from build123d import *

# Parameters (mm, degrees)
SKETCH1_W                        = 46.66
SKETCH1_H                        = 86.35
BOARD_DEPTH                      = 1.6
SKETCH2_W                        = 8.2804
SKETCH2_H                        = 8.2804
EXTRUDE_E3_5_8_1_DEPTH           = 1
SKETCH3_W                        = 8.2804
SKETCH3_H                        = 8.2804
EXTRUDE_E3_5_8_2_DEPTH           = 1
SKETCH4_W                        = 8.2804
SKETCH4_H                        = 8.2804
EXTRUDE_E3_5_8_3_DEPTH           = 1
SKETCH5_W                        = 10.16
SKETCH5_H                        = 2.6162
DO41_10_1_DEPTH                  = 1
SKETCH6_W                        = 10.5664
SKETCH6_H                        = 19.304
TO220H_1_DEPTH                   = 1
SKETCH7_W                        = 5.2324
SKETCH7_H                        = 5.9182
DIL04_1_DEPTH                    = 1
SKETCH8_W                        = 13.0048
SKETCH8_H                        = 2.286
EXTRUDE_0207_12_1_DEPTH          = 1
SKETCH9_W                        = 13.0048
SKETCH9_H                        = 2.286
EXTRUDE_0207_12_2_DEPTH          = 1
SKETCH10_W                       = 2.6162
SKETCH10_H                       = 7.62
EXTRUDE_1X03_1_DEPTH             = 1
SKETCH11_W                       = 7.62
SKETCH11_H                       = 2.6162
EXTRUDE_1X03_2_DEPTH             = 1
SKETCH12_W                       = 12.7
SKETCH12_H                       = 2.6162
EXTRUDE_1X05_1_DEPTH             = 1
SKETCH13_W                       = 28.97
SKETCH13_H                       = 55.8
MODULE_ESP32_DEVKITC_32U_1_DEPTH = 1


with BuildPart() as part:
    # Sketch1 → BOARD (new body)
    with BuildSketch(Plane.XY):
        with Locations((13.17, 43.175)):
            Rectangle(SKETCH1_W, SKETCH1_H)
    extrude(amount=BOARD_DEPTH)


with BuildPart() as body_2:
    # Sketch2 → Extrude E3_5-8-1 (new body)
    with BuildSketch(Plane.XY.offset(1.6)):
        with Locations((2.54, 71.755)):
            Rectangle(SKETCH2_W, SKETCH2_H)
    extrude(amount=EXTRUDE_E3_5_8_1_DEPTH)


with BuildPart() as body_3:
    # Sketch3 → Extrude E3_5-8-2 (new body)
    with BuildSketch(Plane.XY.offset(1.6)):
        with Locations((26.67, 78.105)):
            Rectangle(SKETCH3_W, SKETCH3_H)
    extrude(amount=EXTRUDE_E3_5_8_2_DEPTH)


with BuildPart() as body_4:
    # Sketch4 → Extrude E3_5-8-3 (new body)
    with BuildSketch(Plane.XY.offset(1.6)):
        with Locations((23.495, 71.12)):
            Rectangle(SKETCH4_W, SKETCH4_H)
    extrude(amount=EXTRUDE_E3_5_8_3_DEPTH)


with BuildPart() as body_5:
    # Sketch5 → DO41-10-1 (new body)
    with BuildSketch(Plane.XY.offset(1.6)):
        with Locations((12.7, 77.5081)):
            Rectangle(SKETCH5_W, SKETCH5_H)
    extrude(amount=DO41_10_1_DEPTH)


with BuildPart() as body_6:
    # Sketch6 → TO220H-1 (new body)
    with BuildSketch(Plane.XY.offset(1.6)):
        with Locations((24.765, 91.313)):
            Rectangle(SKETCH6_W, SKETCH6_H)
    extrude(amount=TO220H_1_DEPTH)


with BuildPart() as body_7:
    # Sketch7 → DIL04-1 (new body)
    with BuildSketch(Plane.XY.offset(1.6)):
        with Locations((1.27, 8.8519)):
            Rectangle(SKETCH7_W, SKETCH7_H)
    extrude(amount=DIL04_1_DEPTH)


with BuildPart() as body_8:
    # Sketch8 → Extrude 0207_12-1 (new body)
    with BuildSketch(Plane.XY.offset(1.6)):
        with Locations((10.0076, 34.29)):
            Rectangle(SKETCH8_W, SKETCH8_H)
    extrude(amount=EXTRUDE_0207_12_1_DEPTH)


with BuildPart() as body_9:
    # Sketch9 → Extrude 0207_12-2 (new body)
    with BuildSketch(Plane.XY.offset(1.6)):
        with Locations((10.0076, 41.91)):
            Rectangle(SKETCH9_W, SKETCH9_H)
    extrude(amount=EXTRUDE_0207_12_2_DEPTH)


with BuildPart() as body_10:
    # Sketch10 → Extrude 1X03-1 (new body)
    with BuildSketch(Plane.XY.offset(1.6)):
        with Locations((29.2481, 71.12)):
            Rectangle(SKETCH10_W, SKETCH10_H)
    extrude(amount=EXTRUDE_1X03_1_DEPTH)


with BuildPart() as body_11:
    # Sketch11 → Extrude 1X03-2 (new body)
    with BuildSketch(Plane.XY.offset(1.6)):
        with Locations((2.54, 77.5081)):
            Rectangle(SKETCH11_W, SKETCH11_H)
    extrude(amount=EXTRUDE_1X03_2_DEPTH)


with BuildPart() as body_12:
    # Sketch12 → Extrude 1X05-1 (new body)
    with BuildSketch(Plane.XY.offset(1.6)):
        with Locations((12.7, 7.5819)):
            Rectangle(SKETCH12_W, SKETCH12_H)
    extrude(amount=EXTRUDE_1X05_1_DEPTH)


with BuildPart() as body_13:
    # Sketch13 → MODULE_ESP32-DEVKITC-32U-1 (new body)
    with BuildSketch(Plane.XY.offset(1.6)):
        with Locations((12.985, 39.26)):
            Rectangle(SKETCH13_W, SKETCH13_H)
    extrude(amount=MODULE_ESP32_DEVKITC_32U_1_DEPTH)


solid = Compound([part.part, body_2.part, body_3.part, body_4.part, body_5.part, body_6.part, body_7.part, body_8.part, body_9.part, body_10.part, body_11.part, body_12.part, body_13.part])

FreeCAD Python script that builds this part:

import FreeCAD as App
import Part
import Sketcher

V = App.Vector
Q = App.Units.Quantity

doc = App.newDocument("Part")
body = doc.addObject("PartDesign::Body", "Body")

# Sketch on XY plane
sketch1 = body.newObject("Sketcher::SketchObject", "Sketch")
sketch1.AttachmentSupport = (doc.getObject("XY_Plane"), [""])
sketch1.MapMode = "FlatFace"
sketch1.addGeometry(Part.LineSegment(V(-10, 86, 0), V(-10, 0, 0)), False)
sketch1.addGeometry(Part.LineSegment(V(-10, 0, 0), V(36, 0, 0)), False)
sketch1.addGeometry(Part.LineSegment(V(36, 0, 0), V(36, 86, 0)), False)
sketch1.addGeometry(Part.LineSegment(V(36, 86, 0), V(-10, 86, 0)), False)
sketch1.addConstraint(Sketcher.Constraint("Coincident", 0, 2, 1, 1))
sketch1.addConstraint(Sketcher.Constraint("Coincident", 1, 2, 2, 1))
sketch1.addConstraint(Sketcher.Constraint("Coincident", 2, 2, 3, 1))
sketch1.addConstraint(Sketcher.Constraint("Coincident", 3, 2, 0, 1))
sketch1.addConstraint(Sketcher.Constraint("Vertical", 0))
sketch1.addConstraint(Sketcher.Constraint("Horizontal", 1))
sketch1.addConstraint(Sketcher.Constraint("Vertical", 2))
sketch1.addConstraint(Sketcher.Constraint("Horizontal", 3))
sketch1.addConstraint(Sketcher.Constraint("PointOnObject", 0, 2, -1))
sketch1.addConstraint(Sketcher.Constraint("DistanceX", 0, 2, -1, 1, Q("0.4 in")))
sketch1.addConstraint(Sketcher.Constraint("DistanceX", 1, 1, 1, 2, Q("46.66 mm")))
sketch1.addConstraint(Sketcher.Constraint("DistanceY", 0, 2, 0, 1, Q("86.35 mm")))
pad1 = body.newObject("PartDesign::Pad", "Pad")
pad1.Profile = sketch1
pad1.Length = 1.6
body2 = doc.addObject("PartDesign::Body", "Body001")

# Sketch on XY plane
sketch2 = body2.newObject("Sketcher::SketchObject", "Sketch001")
sketch2.AttachmentSupport = (doc.getObject("XY_Plane001"), [""])
sketch2.MapMode = "FlatFace"
sketch2.AttachmentOffset = App.Placement(V(0, 0, 1.6), App.Rotation())
sketch2.addGeometry(Part.LineSegment(V(-2, 76, 0), V(-2, 68, 0)), False)
sketch2.addGeometry(Part.LineSegment(V(-2, 68, 0), V(7, 68, 0)), False)
sketch2.addGeometry(Part.LineSegment(V(7, 68, 0), V(7, 76, 0)), False)
sketch2.addGeometry(Part.LineSegment(V(7, 76, 0), V(-2, 76, 0)), False)
sketch2.addConstraint(Sketcher.Constraint("Coincident", 0, 2, 1, 1))
sketch2.addConstraint(Sketcher.Constraint("Coincident", 1, 2, 2, 1))
sketch2.addConstraint(Sketcher.Constraint("Coincident", 2, 2, 3, 1))
sketch2.addConstraint(Sketcher.Constraint("Coincident", 3, 2, 0, 1))
sketch2.addConstraint(Sketcher.Constraint("Vertical", 0))
sketch2.addConstraint(Sketcher.Constraint("Horizontal", 1))
sketch2.addConstraint(Sketcher.Constraint("Vertical", 2))
sketch2.addConstraint(Sketcher.Constraint("Horizontal", 3))
sketch2.addConstraint(Sketcher.Constraint("Equal", 3, 0))
sketch2.addConstraint(Sketcher.Constraint("DistanceX", 1, 1, 1, 2, Q("0.326 in")))
sketch2.addConstraint(Sketcher.Constraint("DistanceX", 0, 2, -1, 1, Q("0.063 in")))
sketch2.addConstraint(Sketcher.Constraint("DistanceY", -1, 1, 0, 2, Q("2.662 in")))
pad2 = body2.newObject("PartDesign::Pad", "Pad001")
pad2.Profile = sketch2
pad2.Length = 1
body3 = doc.addObject("PartDesign::Body", "Body002")

# Sketch on XY plane
sketch3 = body3.newObject("Sketcher::SketchObject", "Sketch002")
sketch3.AttachmentSupport = (doc.getObject("XY_Plane002"), [""])
sketch3.MapMode = "FlatFace"
sketch3.AttachmentOffset = App.Placement(V(0, 0, 1.6), App.Rotation())
sketch3.addGeometry(Part.LineSegment(V(23, 82, 0), V(23, 74, 0)), False)
sketch3.addGeometry(Part.LineSegment(V(23, 74, 0), V(31, 74, 0)), False)
sketch3.addGeometry(Part.LineSegment(V(31, 74, 0), V(31, 82, 0)), False)
sketch3.addGeometry(Part.LineSegment(V(31, 82, 0), V(23, 82, 0)), False)
sketch3.addConstraint(Sketcher.Constraint("Coincident", 0, 2, 1, 1))
sketch3.addConstraint(Sketcher.Constraint("Coincident", 1, 2, 2, 1))
sketch3.addConstraint(Sketcher.Constraint("Coincident", 2, 2, 3, 1))
sketch3.addConstraint(Sketcher.Constraint("Coincident", 3, 2, 0, 1))
sketch3.addConstraint(Sketcher.Constraint("Vertical", 0))
sketch3.addConstraint(Sketcher.Constraint("Horizontal", 1))
sketch3.addConstraint(Sketcher.Constraint("Vertical", 2))
sketch3.addConstraint(Sketcher.Constraint("Horizontal", 3))
sketch3.addConstraint(Sketcher.Constraint("Equal", 3, 0))
sketch3.addConstraint(Sketcher.Constraint("DistanceX", 1, 1, 1, 2, Q("0.326 in")))
sketch3.addConstraint(Sketcher.Constraint("DistanceX", -1, 1, 0, 2, Q("0.887 in")))
sketch3.addConstraint(Sketcher.Constraint("DistanceY", -1, 1, 0, 2, Q("2.912 in")))
pad3 = body3.newObject("PartDesign::Pad", "Pad002")
pad3.Profile = sketch3
pad3.Length = 1
body4 = doc.addObject("PartDesign::Body", "Body003")

# Sketch on XY plane
sketch4 = body4.newObject("Sketcher::SketchObject", "Sketch003")
sketch4.AttachmentSupport = (doc.getObject("XY_Plane003"), [""])
sketch4.MapMode = "FlatFace"
sketch4.AttachmentOffset = App.Placement(V(0, 0, 1.6), App.Rotation())
sketch4.addGeometry(Part.LineSegment(V(19, 75, 0), V(19, 67, 0)), False)
sketch4.addGeometry(Part.LineSegment(V(19, 67, 0), V(28, 67, 0)), False)
sketch4.addGeometry(Part.LineSegment(V(28, 67, 0), V(28, 75, 0)), False)
sketch4.addGeometry(Part.LineSegment(V(28, 75, 0), V(19, 75, 0)), False)
sketch4.addConstraint(Sketcher.Constraint("Coincident", 0, 2, 1, 1))
sketch4.addConstraint(Sketcher.Constraint("Coincident", 1, 2, 2, 1))
sketch4.addConstraint(Sketcher.Constraint("Coincident", 2, 2, 3, 1))
sketch4.addConstraint(Sketcher.Constraint("Coincident", 3, 2, 0, 1))
sketch4.addConstraint(Sketcher.Constraint("Vertical", 0))
sketch4.addConstraint(Sketcher.Constraint("Horizontal", 1))
sketch4.addConstraint(Sketcher.Constraint("Vertical", 2))
sketch4.addConstraint(Sketcher.Constraint("Horizontal", 3))
sketch4.addConstraint(Sketcher.Constraint("Equal", 3, 0))
sketch4.addConstraint(Sketcher.Constraint("DistanceX", 1, 1, 1, 2, Q("0.326 in")))
sketch4.addConstraint(Sketcher.Constraint("DistanceX", -1, 1, 0, 2, Q("0.762 in")))
sketch4.addConstraint(Sketcher.Constraint("DistanceY", -1, 1, 0, 2, Q("2.637 in")))
pad4 = body4.newObject("PartDesign::Pad", "Pad003")
pad4.Profile = sketch4
pad4.Length = 1
body5 = doc.addObject("PartDesign::Body", "Body004")

# Sketch on XY plane
sketch5 = body5.newObject("Sketcher::SketchObject", "Sketch004")
sketch5.AttachmentSupport = (doc.getObject("XY_Plane004"), [""])
sketch5.MapMode = "FlatFace"
sketch5.AttachmentOffset = App.Placement(V(0, 0, 1.6), App.Rotation())
sketch5.addGeometry(Part.LineSegment(V(7.6, 78.8, 0), V(7.6, 76.2, 0)), False)
sketch5.addGeometry(Part.LineSegment(V(7.6, 76.2, 0), V(17.8, 76.2, 0)), False)
sketch5.addGeometry(Part.LineSegment(V(17.8, 76.2, 0), V(17.8, 78.8, 0)), False)
sketch5.addGeometry(Part.LineSegment(V(17.8, 78.8, 0), V(7.6, 78.8, 0)), False)
sketch5.addConstraint(Sketcher.Constraint("Coincident", 0, 2, 1, 1))
sketch5.addConstraint(Sketcher.Constraint("Coincident", 1, 2, 2, 1))
sketch5.addConstraint(Sketcher.Constraint("Coincident", 2, 2, 3, 1))
sketch5.addConstraint(Sketcher.Constraint("Coincident", 3, 2, 0, 1))
sketch5.addConstraint(Sketcher.Constraint("Vertical", 0))
sketch5.addConstraint(Sketcher.Constraint("Horizontal", 1))
sketch5.addConstraint(Sketcher.Constraint("Vertical", 2))
sketch5.addConstraint(Sketcher.Constraint("Horizontal", 3))
sketch5.addConstraint(Sketcher.Constraint("DistanceX", 1, 1, 1, 2, Q("0.4 in")))
sketch5.addConstraint(Sketcher.Constraint("DistanceY", -1, 1, 0, 2, Q("3 in")))
sketch5.addConstraint(Sketcher.Constraint("DistanceX", -1, 1, 0, 2, Q("0.3 in")))
sketch5.addConstraint(Sketcher.Constraint("DistanceY", 0, 2, 0, 1, Q("0.103 in")))
pad5 = body5.newObject("PartDesign::Pad", "Pad004")
pad5.Profile = sketch5
pad5.Length = 1
body6 = doc.addObject("PartDesign::Body", "Body005")

# Sketch on XY plane
sketch6 = body6.newObject("Sketcher::SketchObject", "Sketch005")
sketch6.AttachmentSupport = (doc.getObject("XY_Plane005"), [""])
sketch6.MapMode = "FlatFace"
sketch6.AttachmentOffset = App.Placement(V(0, 0, 1.6), App.Rotation())
sketch6.addGeometry(Part.LineSegment(V(19, 101, 0), V(19, 82, 0)), False)
sketch6.addGeometry(Part.LineSegment(V(19, 82, 0), V(30, 82, 0)), False)
sketch6.addGeometry(Part.LineSegment(V(30, 82, 0), V(30, 101, 0)), False)
sketch6.addGeometry(Part.LineSegment(V(30, 101, 0), V(19, 101, 0)), False)
sketch6.addConstraint(Sketcher.Constraint("Coincident", 0, 2, 1, 1))
sketch6.addConstraint(Sketcher.Constraint("Coincident", 1, 2, 2, 1))
sketch6.addConstraint(Sketcher.Constraint("Coincident", 2, 2, 3, 1))
sketch6.addConstraint(Sketcher.Constraint("Coincident", 3, 2, 0, 1))
sketch6.addConstraint(Sketcher.Constraint("Vertical", 0))
sketch6.addConstraint(Sketcher.Constraint("Horizontal", 1))
sketch6.addConstraint(Sketcher.Constraint("Vertical", 2))
sketch6.addConstraint(Sketcher.Constraint("Horizontal", 3))
sketch6.addConstraint(Sketcher.Constraint("DistanceY", 0, 2, 0, 1, Q("0.76 in")))
sketch6.addConstraint(Sketcher.Constraint("DistanceX", 1, 1, 1, 2, Q("0.416 in")))
sketch6.addConstraint(Sketcher.Constraint("DistanceX", -1, 1, 0, 2, Q("0.767 in")))
sketch6.addConstraint(Sketcher.Constraint("DistanceY", -1, 1, 0, 2, Q("3.215 in")))
pad6 = body6.newObject("PartDesign::Pad", "Pad005")
pad6.Profile = sketch6
pad6.Length = 1
body7 = doc.addObject("PartDesign::Body", "Body006")

# Sketch on XY plane
sketch7 = body7.newObject("Sketcher::SketchObject", "Sketch006")
sketch7.AttachmentSupport = (doc.getObject("XY_Plane006"), [""])
sketch7.MapMode = "FlatFace"
sketch7.AttachmentOffset = App.Placement(V(0, 0, 1.6), App.Rotation())
sketch7.addGeometry(Part.LineSegment(V(-1, 12, 0), V(-1, 6, 0)), False)
sketch7.addGeometry(Part.LineSegment(V(-1, 6, 0), V(4, 6, 0)), False)
sketch7.addGeometry(Part.LineSegment(V(4, 6, 0), V(4, 12, 0)), False)
sketch7.addGeometry(Part.LineSegment(V(4, 12, 0), V(-1, 12, 0)), False)
sketch7.addConstraint(Sketcher.Constraint("Coincident", 0, 2, 1, 1))
sketch7.addConstraint(Sketcher.Constraint("Coincident", 1, 2, 2, 1))
sketch7.addConstraint(Sketcher.Constraint("Coincident", 2, 2, 3, 1))
sketch7.addConstraint(Sketcher.Constraint("Coincident", 3, 2, 0, 1))
sketch7.addConstraint(Sketcher.Constraint("Vertical", 0))
sketch7.addConstraint(Sketcher.Constraint("Horizontal", 1))
sketch7.addConstraint(Sketcher.Constraint("Vertical", 2))
sketch7.addConstraint(Sketcher.Constraint("Horizontal", 3))
sketch7.addConstraint(Sketcher.Constraint("DistanceX", 1, 1, 1, 2, Q("0.206 in")))
sketch7.addConstraint(Sketcher.Constraint("DistanceY", 0, 2, 0, 1, Q("0.233 in")))
sketch7.addConstraint(Sketcher.Constraint("DistanceX", 0, 2, -1, 1, Q("0.053 in")))
sketch7.addConstraint(Sketcher.Constraint("DistanceY", -1, 1, 0, 2, Q("0.232 in")))
pad7 = body7.newObject("PartDesign::Pad", "Pad006")
pad7.Profile = sketch7
pad7.Length = 1
body8 = doc.addObject("PartDesign::Body", "Body007")

# Sketch on XY plane
sketch8 = body8.newObject("Sketcher::SketchObject", "Sketch007")
sketch8.AttachmentSupport = (doc.getObject("XY_Plane007"), [""])
sketch8.MapMode = "FlatFace"
sketch8.AttachmentOffset = App.Placement(V(0, 0, 1.6), App.Rotation())
sketch8.addGeometry(Part.LineSegment(V(3.5, 35.4, 0), V(3.5, 33.1, 0)), False)
sketch8.addGeometry(Part.LineSegment(V(3.5, 33.1, 0), V(16.5, 33.1, 0)), False)
sketch8.addGeometry(Part.LineSegment(V(16.5, 33.1, 0), V(16.5, 35.4, 0)), False)
sketch8.addGeometry(Part.LineSegment(V(16.5, 35.4, 0), V(3.5, 35.4, 0)), False)
sketch8.addConstraint(Sketcher.Constraint("Coincident", 0, 2, 1, 1))
sketch8.addConstraint(Sketcher.Constraint("Coincident", 1, 2, 2, 1))
sketch8.addConstraint(Sketcher.Constraint("Coincident", 2, 2, 3, 1))
sketch8.addConstraint(Sketcher.Constraint("Coincident", 3, 2, 0, 1))
sketch8.addConstraint(Sketcher.Constraint("Vertical", 0))
sketch8.addConstraint(Sketcher.Constraint("Horizontal", 1))
sketch8.addConstraint(Sketcher.Constraint("Vertical", 2))
sketch8.addConstraint(Sketcher.Constraint("Horizontal", 3))
sketch8.addConstraint(Sketcher.Constraint("DistanceY", 0, 2, 0, 1, Q("0.09 in")))
sketch8.addConstraint(Sketcher.Constraint("DistanceX", 1, 1, 1, 2, Q("0.512 in")))
sketch8.addConstraint(Sketcher.Constraint("DistanceX", -1, 1, 1, 2, Q("0.65 in")))
sketch8.addConstraint(Sketcher.Constraint("DistanceY", -1, 1, 0, 2, Q("1.305 in")))
pad8 = body8.newObject("PartDesign::Pad", "Pad007")
pad8.Profile = sketch8
pad8.Length = 1
body9 = doc.addObject("PartDesign::Body", "Body008")

# Sketch on XY plane
sketch9 = body9.newObject("Sketcher::SketchObject", "Sketch008")
sketch9.AttachmentSupport = (doc.getObject("XY_Plane008"), [""])
sketch9.MapMode = "FlatFace"
sketch9.AttachmentOffset = App.Placement(V(0, 0, 1.6), App.Rotation())
sketch9.addGeometry(Part.LineSegment(V(3.5, 43.1, 0), V(3.5, 40.8, 0)), False)
sketch9.addGeometry(Part.LineSegment(V(3.5, 40.8, 0), V(16.5, 40.8, 0)), False)
sketch9.addGeometry(Part.LineSegment(V(16.5, 40.8, 0), V(16.5, 43.1, 0)), False)
sketch9.addGeometry(Part.LineSegment(V(16.5, 43.1, 0), V(3.5, 43.1, 0)), False)
sketch9.addConstraint(Sketcher.Constraint("Coincident", 0, 2, 1, 1))
sketch9.addConstraint(Sketcher.Constraint("Coincident", 1, 2, 2, 1))
sketch9.addConstraint(Sketcher.Constraint("Coincident", 2, 2, 3, 1))
sketch9.addConstraint(Sketcher.Constraint("Coincident", 3, 2, 0, 1))
sketch9.addConstraint(Sketcher.Constraint("Vertical", 0))
sketch9.addConstraint(Sketcher.Constraint("Horizontal", 1))
sketch9.addConstraint(Sketcher.Constraint("Vertical", 2))
sketch9.addConstraint(Sketcher.Constraint("Horizontal", 3))
sketch9.addConstraint(Sketcher.Constraint("DistanceY", 0, 2, 0, 1, Q("0.09 in")))
sketch9.addConstraint(Sketcher.Constraint("DistanceX", 1, 1, 1, 2, Q("0.512 in")))
sketch9.addConstraint(Sketcher.Constraint("DistanceX", -1, 1, 1, 2, Q("0.65 in")))
sketch9.addConstraint(Sketcher.Constraint("DistanceY", -1, 1, 0, 2, Q("1.605 in")))
pad9 = body9.newObject("PartDesign::Pad", "Pad008")
pad9.Profile = sketch9
pad9.Length = 1
body10 = doc.addObject("PartDesign::Body", "Body009")

# Sketch on XY plane
sketch10 = body10.newObject("Sketcher::SketchObject", "Sketch009")
sketch10.AttachmentSupport = (doc.getObject("XY_Plane009"), [""])
sketch10.MapMode = "FlatFace"
sketch10.AttachmentOffset = App.Placement(V(0, 0, 1.6), App.Rotation())
sketch10.addGeometry(Part.LineSegment(V(27.9, 74.9, 0), V(27.9, 67.3, 0)), False)
sketch10.addGeometry(Part.LineSegment(V(27.9, 67.3, 0), V(30.6, 67.3, 0)), False)
sketch10.addGeometry(Part.LineSegment(V(30.6, 67.3, 0), V(30.6, 74.9, 0)), False)
sketch10.addGeometry(Part.LineSegment(V(30.6, 74.9, 0), V(27.9, 74.9, 0)), False)
sketch10.addConstraint(Sketcher.Constraint("Coincident", 0, 2, 1, 1))
sketch10.addConstraint(Sketcher.Constraint("Coincident", 1, 2, 2, 1))
sketch10.addConstraint(Sketcher.Constraint("Coincident", 2, 2, 3, 1))
sketch10.addConstraint(Sketcher.Constraint("Coincident", 3, 2, 0, 1))
sketch10.addConstraint(Sketcher.Constraint("Vertical", 0))
sketch10.addConstraint(Sketcher.Constraint("Horizontal", 1))
sketch10.addConstraint(Sketcher.Constraint("Vertical", 2))
sketch10.addConstraint(Sketcher.Constraint("Horizontal", 3))
sketch10.addConstraint(Sketcher.Constraint("DistanceY", 0, 2, 0, 1, Q("0.3 in")))
sketch10.addConstraint(Sketcher.Constraint("DistanceX", -1, 1, 0, 2, Q("1.1 in")))
sketch10.addConstraint(Sketcher.Constraint("DistanceX", 1, 1, 1, 2, Q("0.103 in")))
sketch10.addConstraint(Sketcher.Constraint("DistanceY", -1, 1, 0, 2, Q("2.65 in")))
pad10 = body10.newObject("PartDesign::Pad", "Pad009")
pad10.Profile = sketch10
pad10.Length = 1
body11 = doc.addObject("PartDesign::Body", "Body010")

# Sketch on XY plane
sketch11 = body11.newObject("Sketcher::SketchObject", "Sketch010")
sketch11.AttachmentSupport = (doc.getObject("XY_Plane010"), [""])
sketch11.MapMode = "FlatFace"
sketch11.AttachmentOffset = App.Placement(V(0, 0, 1.6), App.Rotation())
sketch11.addGeometry(Part.LineSegment(V(-1.3, 78.8, 0), V(-1.3, 76.2, 0)), False)
sketch11.addGeometry(Part.LineSegment(V(-1.3, 76.2, 0), V(6.3, 76.2, 0)), False)
sketch11.addGeometry(Part.LineSegment(V(6.3, 76.2, 0), V(6.3, 78.8, 0)), False)
sketch11.addGeometry(Part.LineSegment(V(6.3, 78.8, 0), V(-1.3, 78.8, 0)), False)
sketch11.addConstraint(Sketcher.Constraint("Coincident", 0, 2, 1, 1))
sketch11.addConstraint(Sketcher.Constraint("Coincident", 1, 2, 2, 1))
sketch11.addConstraint(Sketcher.Constraint("Coincident", 2, 2, 3, 1))
sketch11.addConstraint(Sketcher.Constraint("Coincident", 3, 2, 0, 1))
sketch11.addConstraint(Sketcher.Constraint("Vertical", 0))
sketch11.addConstraint(Sketcher.Constraint("Horizontal", 1))
sketch11.addConstraint(Sketcher.Constraint("Vertical", 2))
sketch11.addConstraint(Sketcher.Constraint("Horizontal", 3))
sketch11.addConstraint(Sketcher.Constraint("DistanceX", 1, 1, 1, 2, Q("0.3 in")))
sketch11.addConstraint(Sketcher.Constraint("DistanceY", -1, 1, 0, 2, Q("3 in")))
sketch11.addConstraint(Sketcher.Constraint("DistanceY", 0, 2, 0, 1, Q("0.103 in")))
sketch11.addConstraint(Sketcher.Constraint("DistanceX", 0, 2, -1, 1, Q("0.05 in")))
pad11 = body11.newObject("PartDesign::Pad", "Pad010")
pad11.Profile = sketch11
pad11.Length = 1
body12 = doc.addObject("PartDesign::Body", "Body011")

# Sketch on XY plane
sketch12 = body12.newObject("Sketcher::SketchObject", "Sketch011")
sketch12.AttachmentSupport = (doc.getObject("XY_Plane011"), [""])
sketch12.MapMode = "FlatFace"
sketch12.AttachmentOffset = App.Placement(V(0, 0, 1.6), App.Rotation())
sketch12.addGeometry(Part.LineSegment(V(6.3, 8.9, 0), V(6.3, 6.3, 0)), False)
sketch12.addGeometry(Part.LineSegment(V(6.3, 6.3, 0), V(19.1, 6.3, 0)), False)
sketch12.addGeometry(Part.LineSegment(V(19.1, 6.3, 0), V(19.1, 8.9, 0)), False)
sketch12.addGeometry(Part.LineSegment(V(19.1, 8.9, 0), V(6.3, 8.9, 0)), False)
sketch12.addConstraint(Sketcher.Constraint("Coincident", 0, 2, 1, 1))
sketch12.addConstraint(Sketcher.Constraint("Coincident", 1, 2, 2, 1))
sketch12.addConstraint(Sketcher.Constraint("Coincident", 2, 2, 3, 1))
sketch12.addConstraint(Sketcher.Constraint("Coincident", 3, 2, 0, 1))
sketch12.addConstraint(Sketcher.Constraint("Vertical", 0))
sketch12.addConstraint(Sketcher.Constraint("Horizontal", 1))
sketch12.addConstraint(Sketcher.Constraint("Vertical", 2))
sketch12.addConstraint(Sketcher.Constraint("Horizontal", 3))
sketch12.addConstraint(Sketcher.Constraint("DistanceX", 1, 1, 1, 2, Q("0.5 in")))
sketch12.addConstraint(Sketcher.Constraint("DistanceY", 0, 2, 0, 1, Q("0.103 in")))
sketch12.addConstraint(Sketcher.Constraint("DistanceX", -1, 1, 0, 2, Q("0.25 in")))
sketch12.addConstraint(Sketcher.Constraint("DistanceY", -1, 1, 2, 2, Q("0.35 in")))
pad12 = body12.newObject("PartDesign::Pad", "Pad011")
pad12.Profile = sketch12
pad12.Length = 1
body13 = doc.addObject("PartDesign::Body", "Body012")

# Sketch on XY plane
sketch13 = body13.newObject("Sketcher::SketchObject", "Sketch012")
sketch13.AttachmentSupport = (doc.getObject("XY_Plane012"), [""])
sketch13.MapMode = "FlatFace"
sketch13.AttachmentOffset = App.Placement(V(0, 0, 1.6), App.Rotation())
sketch13.addGeometry(Part.LineSegment(V(-2, 67, 0), V(-2, 11, 0)), False)
sketch13.addGeometry(Part.LineSegment(V(-2, 11, 0), V(27, 11, 0)), False)
sketch13.addGeometry(Part.LineSegment(V(27, 11, 0), V(27, 67, 0)), False)
sketch13.addGeometry(Part.LineSegment(V(27, 67, 0), V(-2, 67, 0)), False)
sketch13.addConstraint(Sketcher.Constraint("Coincident", 0, 2, 1, 1))
sketch13.addConstraint(Sketcher.Constraint("Coincident", 1, 2, 2, 1))
sketch13.addConstraint(Sketcher.Constraint("Coincident", 2, 2, 3, 1))
sketch13.addConstraint(Sketcher.Constraint("Coincident", 3, 2, 0, 1))
sketch13.addConstraint(Sketcher.Constraint("Vertical", 0))
sketch13.addConstraint(Sketcher.Constraint("Horizontal", 1))
sketch13.addConstraint(Sketcher.Constraint("Vertical", 2))
sketch13.addConstraint(Sketcher.Constraint("Horizontal", 3))
sketch13.addConstraint(Sketcher.Constraint("DistanceX", 1, 1, 1, 2, Q("28.97 mm")))
sketch13.addConstraint(Sketcher.Constraint("DistanceY", 0, 2, 0, 1, Q("55.8 mm")))
sketch13.addConstraint(Sketcher.Constraint("DistanceX", 0, 2, -1, 1, Q("1.5 mm")))
sketch13.addConstraint(Sketcher.Constraint("DistanceY", -1, 1, 0, 2, Q("11.36 mm")))
pad13 = body13.newObject("PartDesign::Pad", "Pad012")
pad13.Profile = sketch13
pad13.Length = 1

doc.recompute()
